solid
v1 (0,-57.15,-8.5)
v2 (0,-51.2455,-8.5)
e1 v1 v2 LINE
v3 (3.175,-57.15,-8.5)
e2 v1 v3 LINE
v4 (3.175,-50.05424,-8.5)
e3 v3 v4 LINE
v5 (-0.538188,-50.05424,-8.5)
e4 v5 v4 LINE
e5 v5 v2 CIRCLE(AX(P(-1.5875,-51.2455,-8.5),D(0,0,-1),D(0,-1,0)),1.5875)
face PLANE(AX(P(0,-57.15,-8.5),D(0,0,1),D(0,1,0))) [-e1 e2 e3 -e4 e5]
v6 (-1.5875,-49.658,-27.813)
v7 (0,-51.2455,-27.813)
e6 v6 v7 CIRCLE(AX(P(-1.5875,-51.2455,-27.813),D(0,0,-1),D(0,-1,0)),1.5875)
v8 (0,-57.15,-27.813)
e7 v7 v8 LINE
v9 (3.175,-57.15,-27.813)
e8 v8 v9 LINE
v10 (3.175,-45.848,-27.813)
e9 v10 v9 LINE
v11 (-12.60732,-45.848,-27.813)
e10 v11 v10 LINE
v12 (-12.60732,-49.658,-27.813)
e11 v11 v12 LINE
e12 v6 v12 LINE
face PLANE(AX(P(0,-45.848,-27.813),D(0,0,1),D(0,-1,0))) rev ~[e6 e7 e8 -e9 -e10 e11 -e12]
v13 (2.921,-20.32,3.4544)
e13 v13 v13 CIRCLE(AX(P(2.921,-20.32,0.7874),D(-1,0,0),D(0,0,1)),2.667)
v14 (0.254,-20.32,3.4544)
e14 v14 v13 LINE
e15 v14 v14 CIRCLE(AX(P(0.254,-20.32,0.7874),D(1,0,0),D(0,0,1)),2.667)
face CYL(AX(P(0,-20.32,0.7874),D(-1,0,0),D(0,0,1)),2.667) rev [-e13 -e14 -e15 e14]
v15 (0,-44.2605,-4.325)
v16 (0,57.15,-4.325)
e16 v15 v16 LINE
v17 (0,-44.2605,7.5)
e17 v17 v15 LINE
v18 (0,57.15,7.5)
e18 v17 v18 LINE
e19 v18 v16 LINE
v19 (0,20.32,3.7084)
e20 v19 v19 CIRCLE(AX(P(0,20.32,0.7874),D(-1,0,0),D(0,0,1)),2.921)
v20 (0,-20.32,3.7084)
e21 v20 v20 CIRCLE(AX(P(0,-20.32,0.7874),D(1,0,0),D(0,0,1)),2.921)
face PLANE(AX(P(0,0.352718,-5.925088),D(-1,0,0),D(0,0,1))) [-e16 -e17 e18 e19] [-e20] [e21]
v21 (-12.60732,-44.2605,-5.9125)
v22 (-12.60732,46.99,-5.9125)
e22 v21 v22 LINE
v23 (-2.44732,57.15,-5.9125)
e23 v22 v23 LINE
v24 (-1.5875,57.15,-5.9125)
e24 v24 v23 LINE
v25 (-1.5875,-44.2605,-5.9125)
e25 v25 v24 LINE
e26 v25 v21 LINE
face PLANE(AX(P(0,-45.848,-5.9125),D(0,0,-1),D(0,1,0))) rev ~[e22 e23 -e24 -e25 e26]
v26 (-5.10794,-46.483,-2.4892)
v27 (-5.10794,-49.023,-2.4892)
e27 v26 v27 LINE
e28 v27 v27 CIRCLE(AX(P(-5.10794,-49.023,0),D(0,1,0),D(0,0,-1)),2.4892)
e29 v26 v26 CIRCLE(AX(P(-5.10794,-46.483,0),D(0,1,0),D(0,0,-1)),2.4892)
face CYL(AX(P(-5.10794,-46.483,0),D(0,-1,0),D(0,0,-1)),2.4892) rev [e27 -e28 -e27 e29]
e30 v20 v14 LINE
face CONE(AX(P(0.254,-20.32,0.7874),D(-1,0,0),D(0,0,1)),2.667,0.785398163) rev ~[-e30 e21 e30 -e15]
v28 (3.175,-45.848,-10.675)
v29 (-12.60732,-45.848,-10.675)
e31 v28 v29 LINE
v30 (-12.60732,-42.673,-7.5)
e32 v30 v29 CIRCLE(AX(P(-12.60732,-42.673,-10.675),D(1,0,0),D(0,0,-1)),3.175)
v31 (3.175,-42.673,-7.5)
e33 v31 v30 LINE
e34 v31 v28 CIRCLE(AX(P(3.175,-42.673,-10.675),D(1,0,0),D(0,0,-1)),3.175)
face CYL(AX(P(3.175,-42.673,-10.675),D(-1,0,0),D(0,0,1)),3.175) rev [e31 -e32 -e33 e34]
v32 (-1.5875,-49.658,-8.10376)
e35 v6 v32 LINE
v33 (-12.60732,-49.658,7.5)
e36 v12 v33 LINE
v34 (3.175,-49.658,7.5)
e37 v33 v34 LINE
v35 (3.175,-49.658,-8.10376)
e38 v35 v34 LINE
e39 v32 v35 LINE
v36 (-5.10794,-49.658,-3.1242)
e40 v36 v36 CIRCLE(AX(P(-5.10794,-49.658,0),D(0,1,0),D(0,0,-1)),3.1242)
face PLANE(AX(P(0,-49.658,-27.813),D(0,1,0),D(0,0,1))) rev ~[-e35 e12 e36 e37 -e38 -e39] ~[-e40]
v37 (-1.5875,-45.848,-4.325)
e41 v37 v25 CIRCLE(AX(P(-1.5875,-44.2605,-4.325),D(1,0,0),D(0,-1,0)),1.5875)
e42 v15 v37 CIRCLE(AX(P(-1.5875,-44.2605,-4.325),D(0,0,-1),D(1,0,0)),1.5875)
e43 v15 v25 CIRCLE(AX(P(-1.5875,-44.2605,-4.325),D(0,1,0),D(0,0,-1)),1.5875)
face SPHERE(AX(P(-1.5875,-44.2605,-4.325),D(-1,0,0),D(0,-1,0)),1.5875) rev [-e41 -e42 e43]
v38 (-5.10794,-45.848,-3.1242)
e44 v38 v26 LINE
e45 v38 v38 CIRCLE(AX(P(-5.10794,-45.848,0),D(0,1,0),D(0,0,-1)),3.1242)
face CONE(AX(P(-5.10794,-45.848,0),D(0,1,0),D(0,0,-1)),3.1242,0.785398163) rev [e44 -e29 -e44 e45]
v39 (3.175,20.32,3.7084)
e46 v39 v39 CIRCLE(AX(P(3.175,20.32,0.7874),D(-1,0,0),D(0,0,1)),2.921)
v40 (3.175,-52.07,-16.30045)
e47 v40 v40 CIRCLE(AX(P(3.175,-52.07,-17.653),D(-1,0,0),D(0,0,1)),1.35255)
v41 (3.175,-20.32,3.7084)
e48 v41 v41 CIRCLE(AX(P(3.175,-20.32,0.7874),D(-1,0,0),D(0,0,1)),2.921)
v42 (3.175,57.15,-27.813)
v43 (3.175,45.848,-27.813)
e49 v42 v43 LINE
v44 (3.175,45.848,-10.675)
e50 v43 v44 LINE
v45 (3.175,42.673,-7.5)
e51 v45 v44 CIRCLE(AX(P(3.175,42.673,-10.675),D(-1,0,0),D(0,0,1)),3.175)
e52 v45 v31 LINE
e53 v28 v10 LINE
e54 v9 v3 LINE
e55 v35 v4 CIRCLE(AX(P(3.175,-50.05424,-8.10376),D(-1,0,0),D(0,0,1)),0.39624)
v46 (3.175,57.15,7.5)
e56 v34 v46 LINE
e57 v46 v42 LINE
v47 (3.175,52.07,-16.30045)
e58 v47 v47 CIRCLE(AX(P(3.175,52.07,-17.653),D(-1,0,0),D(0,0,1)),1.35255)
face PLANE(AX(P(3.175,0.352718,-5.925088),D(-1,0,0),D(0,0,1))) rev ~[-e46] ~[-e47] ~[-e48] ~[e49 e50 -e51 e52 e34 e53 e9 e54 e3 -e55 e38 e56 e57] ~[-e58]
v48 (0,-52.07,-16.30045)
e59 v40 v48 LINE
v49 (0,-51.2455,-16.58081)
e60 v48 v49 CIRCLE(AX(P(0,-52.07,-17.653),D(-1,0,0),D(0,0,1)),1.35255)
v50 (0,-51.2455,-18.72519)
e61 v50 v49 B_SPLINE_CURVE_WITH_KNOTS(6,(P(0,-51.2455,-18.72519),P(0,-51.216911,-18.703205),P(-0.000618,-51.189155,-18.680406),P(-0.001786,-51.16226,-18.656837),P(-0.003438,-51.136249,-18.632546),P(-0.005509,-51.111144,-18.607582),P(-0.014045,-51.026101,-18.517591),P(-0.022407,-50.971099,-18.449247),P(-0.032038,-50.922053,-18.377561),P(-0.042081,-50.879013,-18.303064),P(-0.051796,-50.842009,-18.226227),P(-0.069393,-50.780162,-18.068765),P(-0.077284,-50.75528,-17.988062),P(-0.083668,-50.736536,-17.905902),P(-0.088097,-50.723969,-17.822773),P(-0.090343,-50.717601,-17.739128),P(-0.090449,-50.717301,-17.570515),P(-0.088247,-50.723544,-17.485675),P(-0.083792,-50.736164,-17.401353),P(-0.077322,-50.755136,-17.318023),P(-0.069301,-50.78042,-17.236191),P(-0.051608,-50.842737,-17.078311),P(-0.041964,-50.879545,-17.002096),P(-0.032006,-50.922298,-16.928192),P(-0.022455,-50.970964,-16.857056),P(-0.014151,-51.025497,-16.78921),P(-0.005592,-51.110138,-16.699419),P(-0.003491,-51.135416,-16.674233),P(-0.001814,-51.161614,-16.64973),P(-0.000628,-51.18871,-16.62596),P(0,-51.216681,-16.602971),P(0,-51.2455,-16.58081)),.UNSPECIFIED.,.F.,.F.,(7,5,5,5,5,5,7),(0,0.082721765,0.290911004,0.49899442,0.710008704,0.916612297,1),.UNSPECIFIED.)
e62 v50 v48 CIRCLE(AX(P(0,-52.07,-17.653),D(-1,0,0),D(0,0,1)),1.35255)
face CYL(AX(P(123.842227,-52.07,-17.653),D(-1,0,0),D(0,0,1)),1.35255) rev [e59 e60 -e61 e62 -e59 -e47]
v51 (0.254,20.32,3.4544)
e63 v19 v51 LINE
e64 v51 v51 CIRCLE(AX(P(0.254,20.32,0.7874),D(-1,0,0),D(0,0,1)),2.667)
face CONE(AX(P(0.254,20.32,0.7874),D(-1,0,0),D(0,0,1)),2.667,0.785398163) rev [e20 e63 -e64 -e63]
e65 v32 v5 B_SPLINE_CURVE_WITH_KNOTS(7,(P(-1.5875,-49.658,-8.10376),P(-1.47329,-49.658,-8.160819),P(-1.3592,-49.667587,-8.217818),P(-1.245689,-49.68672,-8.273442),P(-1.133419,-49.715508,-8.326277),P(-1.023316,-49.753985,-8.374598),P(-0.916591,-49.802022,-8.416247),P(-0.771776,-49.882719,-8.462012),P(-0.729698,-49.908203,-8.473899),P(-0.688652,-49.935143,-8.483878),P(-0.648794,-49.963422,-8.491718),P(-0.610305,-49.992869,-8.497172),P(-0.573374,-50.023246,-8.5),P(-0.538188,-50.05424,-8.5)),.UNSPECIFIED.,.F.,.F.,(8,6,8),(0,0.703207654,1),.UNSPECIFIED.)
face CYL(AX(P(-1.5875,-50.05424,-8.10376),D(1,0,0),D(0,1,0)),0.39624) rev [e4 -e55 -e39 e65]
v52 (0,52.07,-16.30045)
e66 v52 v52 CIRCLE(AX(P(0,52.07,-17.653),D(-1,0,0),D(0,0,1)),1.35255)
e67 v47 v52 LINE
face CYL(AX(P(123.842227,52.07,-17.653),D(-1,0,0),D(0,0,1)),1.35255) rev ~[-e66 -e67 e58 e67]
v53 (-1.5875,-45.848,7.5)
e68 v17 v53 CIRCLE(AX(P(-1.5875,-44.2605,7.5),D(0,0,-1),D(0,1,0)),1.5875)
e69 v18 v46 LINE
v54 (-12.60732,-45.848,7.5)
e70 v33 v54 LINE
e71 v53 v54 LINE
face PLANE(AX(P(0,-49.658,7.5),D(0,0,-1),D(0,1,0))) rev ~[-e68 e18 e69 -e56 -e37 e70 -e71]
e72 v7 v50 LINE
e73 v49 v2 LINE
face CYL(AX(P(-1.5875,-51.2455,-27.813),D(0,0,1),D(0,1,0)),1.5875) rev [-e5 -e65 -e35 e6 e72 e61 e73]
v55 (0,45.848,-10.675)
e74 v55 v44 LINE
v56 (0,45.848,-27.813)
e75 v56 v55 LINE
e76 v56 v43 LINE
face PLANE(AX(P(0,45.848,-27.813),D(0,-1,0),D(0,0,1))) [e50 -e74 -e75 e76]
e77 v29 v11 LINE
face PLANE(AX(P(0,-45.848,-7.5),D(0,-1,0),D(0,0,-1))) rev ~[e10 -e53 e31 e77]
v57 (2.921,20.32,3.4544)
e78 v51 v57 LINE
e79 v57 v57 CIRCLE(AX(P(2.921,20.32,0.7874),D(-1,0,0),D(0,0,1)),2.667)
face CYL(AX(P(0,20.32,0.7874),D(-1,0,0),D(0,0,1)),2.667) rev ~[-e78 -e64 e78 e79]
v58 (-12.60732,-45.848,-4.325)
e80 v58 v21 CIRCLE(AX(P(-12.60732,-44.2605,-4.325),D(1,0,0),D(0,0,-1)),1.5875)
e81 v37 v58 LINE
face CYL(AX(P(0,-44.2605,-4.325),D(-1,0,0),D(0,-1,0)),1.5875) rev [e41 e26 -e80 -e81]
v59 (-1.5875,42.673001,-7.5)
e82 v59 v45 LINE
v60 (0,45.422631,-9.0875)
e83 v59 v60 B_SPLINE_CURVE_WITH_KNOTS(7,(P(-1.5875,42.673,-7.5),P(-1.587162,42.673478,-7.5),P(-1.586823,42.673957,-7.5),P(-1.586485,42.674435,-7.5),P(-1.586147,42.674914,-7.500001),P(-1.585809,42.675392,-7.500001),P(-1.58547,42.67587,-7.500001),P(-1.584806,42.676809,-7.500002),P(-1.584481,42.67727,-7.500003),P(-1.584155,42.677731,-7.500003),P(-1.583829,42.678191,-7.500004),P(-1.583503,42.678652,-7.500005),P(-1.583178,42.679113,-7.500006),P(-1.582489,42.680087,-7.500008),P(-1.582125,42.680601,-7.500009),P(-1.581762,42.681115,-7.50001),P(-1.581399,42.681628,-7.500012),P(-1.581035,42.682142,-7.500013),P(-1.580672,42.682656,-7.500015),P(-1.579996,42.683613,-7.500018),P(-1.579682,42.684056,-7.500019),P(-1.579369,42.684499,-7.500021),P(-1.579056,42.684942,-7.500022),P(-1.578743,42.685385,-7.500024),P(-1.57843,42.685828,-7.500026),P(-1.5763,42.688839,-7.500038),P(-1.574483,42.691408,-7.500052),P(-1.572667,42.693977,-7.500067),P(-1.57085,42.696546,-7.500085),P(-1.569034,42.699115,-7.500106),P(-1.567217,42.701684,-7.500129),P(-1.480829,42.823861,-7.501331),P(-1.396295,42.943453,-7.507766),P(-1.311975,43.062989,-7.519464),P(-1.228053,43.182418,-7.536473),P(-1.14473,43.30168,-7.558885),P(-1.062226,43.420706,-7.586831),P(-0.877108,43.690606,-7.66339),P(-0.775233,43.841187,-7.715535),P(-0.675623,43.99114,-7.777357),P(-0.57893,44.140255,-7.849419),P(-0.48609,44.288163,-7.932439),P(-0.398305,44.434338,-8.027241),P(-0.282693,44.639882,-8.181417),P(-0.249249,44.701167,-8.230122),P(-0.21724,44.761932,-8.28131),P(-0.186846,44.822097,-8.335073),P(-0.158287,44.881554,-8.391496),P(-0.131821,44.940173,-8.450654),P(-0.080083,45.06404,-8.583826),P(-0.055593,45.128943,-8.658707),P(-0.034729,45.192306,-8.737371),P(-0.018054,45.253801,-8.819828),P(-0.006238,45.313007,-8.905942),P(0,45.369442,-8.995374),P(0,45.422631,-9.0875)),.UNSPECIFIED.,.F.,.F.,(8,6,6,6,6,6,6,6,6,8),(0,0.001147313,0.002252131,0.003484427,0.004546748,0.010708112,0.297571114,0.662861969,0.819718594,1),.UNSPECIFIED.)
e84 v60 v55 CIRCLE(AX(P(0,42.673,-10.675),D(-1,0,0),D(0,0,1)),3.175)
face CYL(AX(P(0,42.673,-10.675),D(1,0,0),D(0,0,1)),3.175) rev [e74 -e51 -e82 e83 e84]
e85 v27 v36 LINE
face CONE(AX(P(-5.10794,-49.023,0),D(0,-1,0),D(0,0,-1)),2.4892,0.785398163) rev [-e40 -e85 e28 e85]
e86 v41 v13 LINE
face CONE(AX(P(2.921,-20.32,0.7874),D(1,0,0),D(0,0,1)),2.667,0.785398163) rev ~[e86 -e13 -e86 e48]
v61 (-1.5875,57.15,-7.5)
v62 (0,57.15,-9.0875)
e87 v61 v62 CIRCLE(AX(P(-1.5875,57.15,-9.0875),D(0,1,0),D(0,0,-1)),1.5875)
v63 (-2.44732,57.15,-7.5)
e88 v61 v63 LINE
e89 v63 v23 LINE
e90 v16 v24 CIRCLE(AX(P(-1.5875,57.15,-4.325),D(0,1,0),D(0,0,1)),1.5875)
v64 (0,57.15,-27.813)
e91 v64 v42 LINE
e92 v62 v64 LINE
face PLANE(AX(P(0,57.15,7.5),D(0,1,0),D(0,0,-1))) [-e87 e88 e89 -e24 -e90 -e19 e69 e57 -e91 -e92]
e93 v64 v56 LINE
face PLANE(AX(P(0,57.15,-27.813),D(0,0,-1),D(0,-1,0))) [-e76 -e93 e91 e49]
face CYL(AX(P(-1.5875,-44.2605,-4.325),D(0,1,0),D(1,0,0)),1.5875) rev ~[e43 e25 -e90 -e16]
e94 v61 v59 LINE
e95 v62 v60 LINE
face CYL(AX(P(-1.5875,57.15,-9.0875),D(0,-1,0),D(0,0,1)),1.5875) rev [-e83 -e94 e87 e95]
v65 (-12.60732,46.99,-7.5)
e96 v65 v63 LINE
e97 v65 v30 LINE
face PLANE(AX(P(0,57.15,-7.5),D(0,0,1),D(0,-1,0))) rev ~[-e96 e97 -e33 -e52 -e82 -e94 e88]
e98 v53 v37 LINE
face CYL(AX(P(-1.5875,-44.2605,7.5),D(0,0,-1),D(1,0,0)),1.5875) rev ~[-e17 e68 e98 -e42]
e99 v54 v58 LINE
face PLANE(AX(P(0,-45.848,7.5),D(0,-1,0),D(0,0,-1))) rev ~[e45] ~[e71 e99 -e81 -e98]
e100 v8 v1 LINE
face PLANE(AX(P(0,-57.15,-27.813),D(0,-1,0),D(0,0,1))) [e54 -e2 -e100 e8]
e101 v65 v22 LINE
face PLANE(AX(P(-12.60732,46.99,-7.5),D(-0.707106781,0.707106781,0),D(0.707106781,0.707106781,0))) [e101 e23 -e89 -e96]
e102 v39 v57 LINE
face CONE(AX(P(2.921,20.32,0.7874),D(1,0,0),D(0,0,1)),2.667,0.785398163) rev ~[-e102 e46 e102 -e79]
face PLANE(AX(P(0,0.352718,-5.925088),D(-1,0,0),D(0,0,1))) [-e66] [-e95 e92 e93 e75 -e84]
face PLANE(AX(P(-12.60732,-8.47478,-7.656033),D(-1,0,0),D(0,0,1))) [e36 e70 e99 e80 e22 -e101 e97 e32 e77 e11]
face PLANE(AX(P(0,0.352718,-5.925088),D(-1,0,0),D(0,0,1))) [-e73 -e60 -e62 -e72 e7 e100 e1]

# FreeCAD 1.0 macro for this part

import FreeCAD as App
import Part
import Sketcher
from FreeCAD import Vector
Q = App.Units.Quantity


def edges_at(feature, points):
    """Names of the edges that pass closest to the given points."""
    edges = feature.Shape.Edges
    near = lambda p: min(range(len(edges)), key=lambda i: edges[i].distToShape(Part.Vertex(*p))[0])
    return sorted({f"Edge{near(p) + 1}" for p in points})


def add_polygon(sketch, points):
    """Adds a closed chain of lines whose ends are joined by coincident constraints."""
    first, n = sketch.GeometryCount, len(points)
    for a, b in zip(points, points[1:] + points[:1]):
        sketch.addGeometry(Part.LineSegment(App.Vector(*a, 0), App.Vector(*b, 0)), False)
    for i in range(n):
        sketch.addConstraint(Sketcher.Constraint("Coincident", first + i, 2, first + (i + 1) % n, 1))

doc = App.newDocument("Part")
params = doc.addObject("Spreadsheet::Sheet", "Params")
for row, (alias, value) in enumerate([
    ("pad1_length", "0.125 in"),
    ("sketch2_width", "0.15 in"),
    ("sketch2_height", "0.0625 in"),
    ("pad2_length", "12.60732 mm"),
    ("sketch3_width", "0.1 in"),
    ("sketch3_width2", "0.15 in"),
    ("sketch3_height", "0.123 in"),
    ("groove_angle", "360 deg"),
    ("fillet_radius", "0.0625 in"),
    ("fillet2_radius", "0.125 in"),
    ("sketch4_width", "0.4 in"),
    ("hole_diameter", "0.1065 in"),
    ("sketch6_diameter", "0.21 in"),
    ("chamfer_size", "0.01 in"),
    ("fillet3_radius", "0.0625 in"),
    ("fillet4_radius", "0.0156 in"),
], start=1):
    params.set(f"A{row}", alias)
    params.set(f"B{row}", "=" + value)
    params.setAlias(f"B{row}", alias)

body = doc.addObject("PartDesign::Body", "Body")

# Sketch on YZ plane
sketch1 = doc.addObject("Sketcher::SketchObject", "Sketch")
body.addObject(sketch1)
sketch1.AttachmentSupport = (doc.YZ_Plane, [""])
sketch1.MapMode = "FlatFace"
add_polygon(sketch1, [(45.848, -27.813), (57.15, -27.813), (57.15, 7.5), (-49.658, 7.5), (-49.658, -8.5), (-57.15, -8.5), (-57.15, -27.813), (-45.848, -27.813), (-45.848, -7.5), (45.848, -7.5)])  # lines 0-9
sketch1.addConstraint([
    Sketcher.Constraint("Horizontal", 0),
    Sketcher.Constraint("Vertical", 1),
    Sketcher.Constraint("Horizontal", 2),
    Sketcher.Constraint("Vertical", 3),
    Sketcher.Constraint("Horizontal", 4),
    Sketcher.Constraint("Vertical", 5),
    Sketcher.Constraint("Horizontal", 6),
    Sketcher.Constraint("Vertical", 7),
    Sketcher.Constraint("Horizontal", 8),
    Sketcher.Constraint("Vertical", 9),
    Sketcher.Constraint("Symmetric", 0, 2, 5, 2, -2),
    Sketcher.Constraint("Equal", 0, 6),
    Sketcher.Constraint("DistanceX", 4, 2, 1, 2, Q("4.5 in")),
    Sketcher.Constraint("DistanceX", 3, 2, 6, 2, Q("0.15 in")),
    Sketcher.Constraint("DistanceY", 0, 2, -1, 1, Q("1.095 in")),
    Sketcher.Constraint("DistanceX", 0, 1, 0, 2, 11.302),
    Sketcher.Constraint("DistanceY", 1, 1, 1, 2, 35.313),
    Sketcher.Constraint("DistanceY", 3, 2, 3, 1, 16.0),
    Sketcher.Constraint("DistanceY", 7, 1, 7, 2, 20.313),
])
pad1 = doc.addObject("PartDesign::Pad", "Pad")
body.addObject(pad1)
pad1.Profile = sketch1
pad1.setExpression("Length", "Params.pad1_length")

# Sketch on YZ plane
sketch2 = doc.addObject("Sketcher::SketchObject", "Sketch001")
body.addObject(sketch2)
sketch2.AttachmentSupport = (doc.YZ_Plane, [""])
sketch2.MapMode = "FlatFace"
add_polygon(sketch2, [(-49.658, 7.5), (-45.848, 7.5), (-45.848, -5.9125), (57.15, -5.9125), (57.15, -7.5), (-45.848, -7.5), (-45.848, -27.813), (-49.658, -27.813)])  # lines 0-7
sketch2.addConstraint([
    Sketcher.Constraint("Horizontal", 0),
    Sketcher.Constraint("Vertical", 1),
    Sketcher.Constraint("Horizontal", 2),
    Sketcher.Constraint("Vertical", 3),
    Sketcher.Constraint("Horizontal", 4),
    Sketcher.Constraint("Vertical", 5),
    Sketcher.Constraint("Horizontal", 6),
    Sketcher.Constraint("Vertical", 7),
    Sketcher.Constraint("Symmetric", 0, 2, 4, 2, -1),
    Sketcher.Constraint("DistanceX", 0, 1, 0, 2, Q("0.15 in")),
    Sketcher.Constraint("DistanceY", 3, 2, 3, 1, Q("0.0625 in")),
    Sketcher.Constraint("DistanceX", -1, 1, 2, 2, Q("2.25 in")),
    Sketcher.Constraint("DistanceY", 5, 2, -1, 1, Q("1.095 in")),
    Sketcher.Constraint("DistanceX", 2, 1, 2, 2, 102.998),
    Sketcher.Constraint("DistanceY", 1, 2, 1, 1, 13.4125),
])
sketch2.setExpression("Constraints[17]", "Params.sketch2_width")
sketch2.setExpression("Constraints[18]", "Params.sketch2_height")
pad2 = doc.addObject("PartDesign::Pad", "Pad001")
body.addObject(pad2)
pad2.Profile = sketch2
pad2.setExpression("Length", "Params.pad2_length")
pad2.Reversed = True

# Sketch on YZ plane
sketch3 = doc.addObject("Sketcher::SketchObject", "Sketch002")
body.addObject(sketch3)
sketch3.AttachmentSupport = (doc.YZ_Plane, [""])
sketch3.MapMode = "FlatFace"
sketch3.AttachmentOffset = App.Placement(Vector(0, 0, -0.2011 * 25.4), App.Rotation())
add_polygon(sketch3, [(-45.848, 0), (-49.658, 0), (-49.658, -3.1242), (-49.023, -2.4892), (-46.483, -2.4892), (-45.848, -3.1242)])  # lines 0-5
sketch3.addConstraint([
    Sketcher.Constraint("Horizontal", 0),
    Sketcher.Constraint("Vertical", 1),
    Sketcher.Constraint("Horizontal", 3),
    Sketcher.Constraint("Vertical", 5),
    Sketcher.Constraint("PointOnObject", 0, 2, -1),
    Sketcher.Constraint("Perpendicular", 2, 4),
    Sketcher.Constraint("Horizontal", 1, 2, 4, 2),
    Sketcher.Constraint("Equal", 2, 4),
    Sketcher.Constraint("DistanceX", 3, 1, 3, 2, Q("0.1 in")),
    Sketcher.Constraint("DistanceX", 0, 2, 0, 1, Q("0.15 in")),
    Sketcher.Constraint("DistanceY", 1, 2, 1, 1, Q("0.123 in")),
    Sketcher.Constraint("DistanceX", 0, 2, -1, 1, 49.658),
])
sketch3.setExpression("Constraints[14]", "Params.sketch3_width")
sketch3.setExpression("Constraints[15]", "Params.sketch3_width2")
sketch3.setExpression("Constraints[16]", "Params.sketch3_height")
groove = doc.addObject("PartDesign::Groove", "Groove")
body.addObject(groove)
groove.Profile = sketch3
groove.ReferenceAxis = (sketch3, ["H_Axis"])
groove.setExpression("Angle", "Params.groove_angle")
doc.recompute()

fillet = doc.addObject("PartDesign::Fillet", "Fillet")
body.addObject(fillet)
fillet.Base = (groove, edges_at(groove, [(-6.304, -45.848, -5.912)]))
fillet.setExpression("Radius", "Params.fillet_radius")
doc.recompute()

fillet2 = doc.addObject("PartDesign::Fillet", "Fillet001")
body.addObject(fillet2)
fillet2.Base = (fillet, edges_at(fillet, [(-4.716, -45.848, -7.5), (1.587, 45.848, -7.5)]))
fillet2.setExpression("Radius", "Params.fillet2_radius")

# Sketch on XY plane
sketch4 = doc.addObject("Sketcher::SketchObject", "Sketch003")
body.addObject(sketch4)
sketch4.AttachmentSupport = (doc.XY_Plane, [""])
sketch4.MapMode = "FlatFace"
sketch4.AttachmentOffset = App.Placement(Vector(0, 0, -7.5), App.Rotation())
add_polygon(sketch4, [(-12.60732, 57.15), (-2.44732, 57.15), (-12.60732, 46.99)])  # lines 0-2
sketch4.addConstraint([
    Sketcher.Constraint("Horizontal", 0),
    Sketcher.Constraint("Vertical", 2),
    Sketcher.Constraint("Equal", 0, 2),
    Sketcher.Constraint("DistanceX", 0, 1, 0, 2, Q("0.4 in")),
    Sketcher.Constraint("DistanceY", -1, 1, 0, 2, Q("2.25 in")),
    Sketcher.Constraint("DistanceX", 0, 2, -1, 1, 2.44732),
])
sketch4.setExpression("Constraints[6]", "Params.sketch4_width")
pocket1 = doc.addObject("PartDesign::Pocket", "Pocket")
body.addObject(pocket1)
pocket1.Profile = sketch4
pocket1.Type = "ThroughAll"
pocket1.Reversed = True

# Sketch on YZ plane
sketch5 = doc.addObject("Sketcher::SketchObject", "Sketch004")
body.addObject(sketch5)
sketch5.AttachmentSupport = (doc.YZ_Plane, [""])
sketch5.MapMode = "FlatFace"
sketch5.AttachmentOffset = App.Placement(Vector(0, 0, 0.125 * 25.4), App.Rotation())
sketch5.addGeometry(Part.Circle(Vector(52.07, -17.653, 0), Vector(0, 0, 1), 1.35255), False)
sketch5.addConstraint([
    Sketcher.Constraint("Diameter", 0, Q("0.1065 in")),
    Sketcher.Constraint("DistanceX", -1, 1, 0, 3, Q("2.05 in")),
    Sketcher.Constraint("DistanceY", 0, 3, -1, 1, Q("0.695 in")),
])
doc.recompute()
hole = doc.addObject("PartDesign::Hole", "Hole")
body.addObject(hole)
hole.Profile = sketch5
hole.ThreadType = "None"
hole.setExpression("Diameter", "Params.hole_diameter")
hole.DepthType = "ThroughAll"

# Sketch on YZ plane
sketch6 = doc.addObject("Sketcher::SketchObject", "Sketch005")
body.addObject(sketch6)
sketch6.AttachmentSupport = (doc.YZ_Plane, [""])
sketch6.MapMode = "FlatFace"
sketch6.addGeometry(Part.Circle(Vector(20.32, 0.7874, 0), Vector(0, 0, 1), 2.667), False)
sketch6.addConstraint([
    Sketcher.Constraint("Diameter", 0, Q("0.21 in")),
    Sketcher.Constraint("DistanceX", -1, 1, 0, 3, Q("0.8 in")),
    Sketcher.Constraint("DistanceY", -1, 1, 0, 3, Q("0.031 in")),
])
sketch6.setExpression("Constraints[0]", "Params.sketch6_diameter")
pocket2 = doc.addObject("PartDesign::Pocket", "Pocket001")
body.addObject(pocket2)
pocket2.Profile = sketch6
pocket2.Type = "ThroughAll"
pocket2.Reversed = True
doc.recompute()

mirrored = doc.addObject("PartDesign::Mirrored", "Mirrored")
body.addObject(mirrored)
mirrored.Originals = [pocket2]
mirrored.MirrorPlane = (doc.XZ_Plane, [""])
body.Tip = mirrored
doc.recompute()

chamfer = doc.addObject("PartDesign::Chamfer", "Chamfer")
body.addObject(chamfer)
chamfer.Base = (mirrored, edges_at(mirrored, [
    (3.175, 20.32, -1.88),
    (0, 20.32, -1.88),
    (3.175, -20.32, -1.88),
    (0, -20.32, -1.88),
]))
chamfer.setExpression("Size", "Params.chamfer_size")
doc.recompute()

fillet3 = doc.addObject("PartDesign::Fillet", "Fillet002")
body.addObject(fillet3)
fillet3.Base = (chamfer, edges_at(chamfer, [
    (0, 6.445, -5.912),
    (0, -45.383, -5.448),
    (0, -49.658, -18.157),
    (0, 49.911, -7.5),
    (0, -45.848, 1.587),
]))
fillet3.setExpression("Radius", "Params.fillet3_radius")
doc.recompute()

mirrored2 = doc.addObject("PartDesign::Mirrored", "Mirrored001")
body.addObject(mirrored2)
mirrored2.Originals = [hole]
mirrored2.MirrorPlane = (doc.XZ_Plane, [""])
body.Tip = mirrored2
doc.recompute()

fillet4 = doc.addObject("PartDesign::Fillet", "Fillet003")
body.addObject(fillet4)
fillet4.Base = (mirrored2, edges_at(mirrored2, [(0.794, -49.658, -8.5)]))
fillet4.setExpression("Radius", "Params.fillet4_radius")

doc.recompute()
